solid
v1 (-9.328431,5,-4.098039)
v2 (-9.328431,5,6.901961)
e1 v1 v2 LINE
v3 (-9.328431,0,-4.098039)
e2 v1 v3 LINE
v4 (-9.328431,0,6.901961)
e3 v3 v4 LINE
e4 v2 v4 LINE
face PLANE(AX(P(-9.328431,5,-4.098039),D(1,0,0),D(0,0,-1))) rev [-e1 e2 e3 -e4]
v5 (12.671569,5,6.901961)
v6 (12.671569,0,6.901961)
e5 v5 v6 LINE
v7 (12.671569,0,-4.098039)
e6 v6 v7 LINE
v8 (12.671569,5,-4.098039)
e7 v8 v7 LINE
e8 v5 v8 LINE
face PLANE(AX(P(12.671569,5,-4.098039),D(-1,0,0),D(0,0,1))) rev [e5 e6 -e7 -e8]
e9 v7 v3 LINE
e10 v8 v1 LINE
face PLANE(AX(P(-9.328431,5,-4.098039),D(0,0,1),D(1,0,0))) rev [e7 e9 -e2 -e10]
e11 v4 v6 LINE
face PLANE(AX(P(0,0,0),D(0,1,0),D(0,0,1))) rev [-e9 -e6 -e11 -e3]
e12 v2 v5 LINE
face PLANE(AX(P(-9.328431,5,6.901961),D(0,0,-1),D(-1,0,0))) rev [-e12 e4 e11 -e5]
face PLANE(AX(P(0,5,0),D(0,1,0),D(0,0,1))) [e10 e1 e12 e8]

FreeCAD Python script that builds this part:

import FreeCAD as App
import Part
import Sketcher

V = App.Vector
Q = App.Units.Quantity


def add_polygon(sketch, points):
    """Adds a closed chain of lines whose ends are joined by coincident constraints."""
    first, n = sketch.GeometryCount, len(points)
    for a, b in zip(points, points[1:] + points[:1]):
        sketch.addGeometry(Part.LineSegment(App.Vector(*a, 0), App.Vector(*b, 0)), False)
    for i in range(n):
        sketch.addConstraint(Sketcher.Constraint("Coincident", first + i, 2, first + (i + 1) % n, 1))

doc = App.newDocument("Part")
body = doc.addObject("PartDesign::Body", "Body")

# Sketch on XZ plane
sketch1 = body.newObject("Sketcher::SketchObject", "Sketch")
sketch1.AttachmentSupport = (doc.getObject("XZ_Plane"), [""])
sketch1.MapMode = "FlatFace"
add_polygon(sketch1, [(-9.328431, -4.098039), (-9.328431, 6.901961), (12.671569, 6.901961), (12.671569, -4.098039)])  # lines 0-3
sketch1.addConstraint([
    Sketcher.Constraint("Vertical", 0),
    Sketcher.Constraint("Horizontal", 1),
    Sketcher.Constraint("Vertical", 2),
    Sketcher.Constraint("Horizontal", 3),
    Sketcher.Constraint("DistanceX", 1, 1, 1, 2, Q("22 mm")),
    Sketcher.Constraint("DistanceY", 0, 1, 0, 2, Q("11 mm")),
    Sketcher.Constraint("DistanceX", 0, 2, -1, 1, Q("9.328431 mm")),
    Sketcher.Constraint("DistanceY", -1, 1, 0, 2, Q("6.901961 mm")),
])
pad1 = body.newObject("PartDesign::Pad", "Pad")
pad1.Profile = sketch1
pad1.Length = 5
pad1.Reversed = True

doc.recompute()
